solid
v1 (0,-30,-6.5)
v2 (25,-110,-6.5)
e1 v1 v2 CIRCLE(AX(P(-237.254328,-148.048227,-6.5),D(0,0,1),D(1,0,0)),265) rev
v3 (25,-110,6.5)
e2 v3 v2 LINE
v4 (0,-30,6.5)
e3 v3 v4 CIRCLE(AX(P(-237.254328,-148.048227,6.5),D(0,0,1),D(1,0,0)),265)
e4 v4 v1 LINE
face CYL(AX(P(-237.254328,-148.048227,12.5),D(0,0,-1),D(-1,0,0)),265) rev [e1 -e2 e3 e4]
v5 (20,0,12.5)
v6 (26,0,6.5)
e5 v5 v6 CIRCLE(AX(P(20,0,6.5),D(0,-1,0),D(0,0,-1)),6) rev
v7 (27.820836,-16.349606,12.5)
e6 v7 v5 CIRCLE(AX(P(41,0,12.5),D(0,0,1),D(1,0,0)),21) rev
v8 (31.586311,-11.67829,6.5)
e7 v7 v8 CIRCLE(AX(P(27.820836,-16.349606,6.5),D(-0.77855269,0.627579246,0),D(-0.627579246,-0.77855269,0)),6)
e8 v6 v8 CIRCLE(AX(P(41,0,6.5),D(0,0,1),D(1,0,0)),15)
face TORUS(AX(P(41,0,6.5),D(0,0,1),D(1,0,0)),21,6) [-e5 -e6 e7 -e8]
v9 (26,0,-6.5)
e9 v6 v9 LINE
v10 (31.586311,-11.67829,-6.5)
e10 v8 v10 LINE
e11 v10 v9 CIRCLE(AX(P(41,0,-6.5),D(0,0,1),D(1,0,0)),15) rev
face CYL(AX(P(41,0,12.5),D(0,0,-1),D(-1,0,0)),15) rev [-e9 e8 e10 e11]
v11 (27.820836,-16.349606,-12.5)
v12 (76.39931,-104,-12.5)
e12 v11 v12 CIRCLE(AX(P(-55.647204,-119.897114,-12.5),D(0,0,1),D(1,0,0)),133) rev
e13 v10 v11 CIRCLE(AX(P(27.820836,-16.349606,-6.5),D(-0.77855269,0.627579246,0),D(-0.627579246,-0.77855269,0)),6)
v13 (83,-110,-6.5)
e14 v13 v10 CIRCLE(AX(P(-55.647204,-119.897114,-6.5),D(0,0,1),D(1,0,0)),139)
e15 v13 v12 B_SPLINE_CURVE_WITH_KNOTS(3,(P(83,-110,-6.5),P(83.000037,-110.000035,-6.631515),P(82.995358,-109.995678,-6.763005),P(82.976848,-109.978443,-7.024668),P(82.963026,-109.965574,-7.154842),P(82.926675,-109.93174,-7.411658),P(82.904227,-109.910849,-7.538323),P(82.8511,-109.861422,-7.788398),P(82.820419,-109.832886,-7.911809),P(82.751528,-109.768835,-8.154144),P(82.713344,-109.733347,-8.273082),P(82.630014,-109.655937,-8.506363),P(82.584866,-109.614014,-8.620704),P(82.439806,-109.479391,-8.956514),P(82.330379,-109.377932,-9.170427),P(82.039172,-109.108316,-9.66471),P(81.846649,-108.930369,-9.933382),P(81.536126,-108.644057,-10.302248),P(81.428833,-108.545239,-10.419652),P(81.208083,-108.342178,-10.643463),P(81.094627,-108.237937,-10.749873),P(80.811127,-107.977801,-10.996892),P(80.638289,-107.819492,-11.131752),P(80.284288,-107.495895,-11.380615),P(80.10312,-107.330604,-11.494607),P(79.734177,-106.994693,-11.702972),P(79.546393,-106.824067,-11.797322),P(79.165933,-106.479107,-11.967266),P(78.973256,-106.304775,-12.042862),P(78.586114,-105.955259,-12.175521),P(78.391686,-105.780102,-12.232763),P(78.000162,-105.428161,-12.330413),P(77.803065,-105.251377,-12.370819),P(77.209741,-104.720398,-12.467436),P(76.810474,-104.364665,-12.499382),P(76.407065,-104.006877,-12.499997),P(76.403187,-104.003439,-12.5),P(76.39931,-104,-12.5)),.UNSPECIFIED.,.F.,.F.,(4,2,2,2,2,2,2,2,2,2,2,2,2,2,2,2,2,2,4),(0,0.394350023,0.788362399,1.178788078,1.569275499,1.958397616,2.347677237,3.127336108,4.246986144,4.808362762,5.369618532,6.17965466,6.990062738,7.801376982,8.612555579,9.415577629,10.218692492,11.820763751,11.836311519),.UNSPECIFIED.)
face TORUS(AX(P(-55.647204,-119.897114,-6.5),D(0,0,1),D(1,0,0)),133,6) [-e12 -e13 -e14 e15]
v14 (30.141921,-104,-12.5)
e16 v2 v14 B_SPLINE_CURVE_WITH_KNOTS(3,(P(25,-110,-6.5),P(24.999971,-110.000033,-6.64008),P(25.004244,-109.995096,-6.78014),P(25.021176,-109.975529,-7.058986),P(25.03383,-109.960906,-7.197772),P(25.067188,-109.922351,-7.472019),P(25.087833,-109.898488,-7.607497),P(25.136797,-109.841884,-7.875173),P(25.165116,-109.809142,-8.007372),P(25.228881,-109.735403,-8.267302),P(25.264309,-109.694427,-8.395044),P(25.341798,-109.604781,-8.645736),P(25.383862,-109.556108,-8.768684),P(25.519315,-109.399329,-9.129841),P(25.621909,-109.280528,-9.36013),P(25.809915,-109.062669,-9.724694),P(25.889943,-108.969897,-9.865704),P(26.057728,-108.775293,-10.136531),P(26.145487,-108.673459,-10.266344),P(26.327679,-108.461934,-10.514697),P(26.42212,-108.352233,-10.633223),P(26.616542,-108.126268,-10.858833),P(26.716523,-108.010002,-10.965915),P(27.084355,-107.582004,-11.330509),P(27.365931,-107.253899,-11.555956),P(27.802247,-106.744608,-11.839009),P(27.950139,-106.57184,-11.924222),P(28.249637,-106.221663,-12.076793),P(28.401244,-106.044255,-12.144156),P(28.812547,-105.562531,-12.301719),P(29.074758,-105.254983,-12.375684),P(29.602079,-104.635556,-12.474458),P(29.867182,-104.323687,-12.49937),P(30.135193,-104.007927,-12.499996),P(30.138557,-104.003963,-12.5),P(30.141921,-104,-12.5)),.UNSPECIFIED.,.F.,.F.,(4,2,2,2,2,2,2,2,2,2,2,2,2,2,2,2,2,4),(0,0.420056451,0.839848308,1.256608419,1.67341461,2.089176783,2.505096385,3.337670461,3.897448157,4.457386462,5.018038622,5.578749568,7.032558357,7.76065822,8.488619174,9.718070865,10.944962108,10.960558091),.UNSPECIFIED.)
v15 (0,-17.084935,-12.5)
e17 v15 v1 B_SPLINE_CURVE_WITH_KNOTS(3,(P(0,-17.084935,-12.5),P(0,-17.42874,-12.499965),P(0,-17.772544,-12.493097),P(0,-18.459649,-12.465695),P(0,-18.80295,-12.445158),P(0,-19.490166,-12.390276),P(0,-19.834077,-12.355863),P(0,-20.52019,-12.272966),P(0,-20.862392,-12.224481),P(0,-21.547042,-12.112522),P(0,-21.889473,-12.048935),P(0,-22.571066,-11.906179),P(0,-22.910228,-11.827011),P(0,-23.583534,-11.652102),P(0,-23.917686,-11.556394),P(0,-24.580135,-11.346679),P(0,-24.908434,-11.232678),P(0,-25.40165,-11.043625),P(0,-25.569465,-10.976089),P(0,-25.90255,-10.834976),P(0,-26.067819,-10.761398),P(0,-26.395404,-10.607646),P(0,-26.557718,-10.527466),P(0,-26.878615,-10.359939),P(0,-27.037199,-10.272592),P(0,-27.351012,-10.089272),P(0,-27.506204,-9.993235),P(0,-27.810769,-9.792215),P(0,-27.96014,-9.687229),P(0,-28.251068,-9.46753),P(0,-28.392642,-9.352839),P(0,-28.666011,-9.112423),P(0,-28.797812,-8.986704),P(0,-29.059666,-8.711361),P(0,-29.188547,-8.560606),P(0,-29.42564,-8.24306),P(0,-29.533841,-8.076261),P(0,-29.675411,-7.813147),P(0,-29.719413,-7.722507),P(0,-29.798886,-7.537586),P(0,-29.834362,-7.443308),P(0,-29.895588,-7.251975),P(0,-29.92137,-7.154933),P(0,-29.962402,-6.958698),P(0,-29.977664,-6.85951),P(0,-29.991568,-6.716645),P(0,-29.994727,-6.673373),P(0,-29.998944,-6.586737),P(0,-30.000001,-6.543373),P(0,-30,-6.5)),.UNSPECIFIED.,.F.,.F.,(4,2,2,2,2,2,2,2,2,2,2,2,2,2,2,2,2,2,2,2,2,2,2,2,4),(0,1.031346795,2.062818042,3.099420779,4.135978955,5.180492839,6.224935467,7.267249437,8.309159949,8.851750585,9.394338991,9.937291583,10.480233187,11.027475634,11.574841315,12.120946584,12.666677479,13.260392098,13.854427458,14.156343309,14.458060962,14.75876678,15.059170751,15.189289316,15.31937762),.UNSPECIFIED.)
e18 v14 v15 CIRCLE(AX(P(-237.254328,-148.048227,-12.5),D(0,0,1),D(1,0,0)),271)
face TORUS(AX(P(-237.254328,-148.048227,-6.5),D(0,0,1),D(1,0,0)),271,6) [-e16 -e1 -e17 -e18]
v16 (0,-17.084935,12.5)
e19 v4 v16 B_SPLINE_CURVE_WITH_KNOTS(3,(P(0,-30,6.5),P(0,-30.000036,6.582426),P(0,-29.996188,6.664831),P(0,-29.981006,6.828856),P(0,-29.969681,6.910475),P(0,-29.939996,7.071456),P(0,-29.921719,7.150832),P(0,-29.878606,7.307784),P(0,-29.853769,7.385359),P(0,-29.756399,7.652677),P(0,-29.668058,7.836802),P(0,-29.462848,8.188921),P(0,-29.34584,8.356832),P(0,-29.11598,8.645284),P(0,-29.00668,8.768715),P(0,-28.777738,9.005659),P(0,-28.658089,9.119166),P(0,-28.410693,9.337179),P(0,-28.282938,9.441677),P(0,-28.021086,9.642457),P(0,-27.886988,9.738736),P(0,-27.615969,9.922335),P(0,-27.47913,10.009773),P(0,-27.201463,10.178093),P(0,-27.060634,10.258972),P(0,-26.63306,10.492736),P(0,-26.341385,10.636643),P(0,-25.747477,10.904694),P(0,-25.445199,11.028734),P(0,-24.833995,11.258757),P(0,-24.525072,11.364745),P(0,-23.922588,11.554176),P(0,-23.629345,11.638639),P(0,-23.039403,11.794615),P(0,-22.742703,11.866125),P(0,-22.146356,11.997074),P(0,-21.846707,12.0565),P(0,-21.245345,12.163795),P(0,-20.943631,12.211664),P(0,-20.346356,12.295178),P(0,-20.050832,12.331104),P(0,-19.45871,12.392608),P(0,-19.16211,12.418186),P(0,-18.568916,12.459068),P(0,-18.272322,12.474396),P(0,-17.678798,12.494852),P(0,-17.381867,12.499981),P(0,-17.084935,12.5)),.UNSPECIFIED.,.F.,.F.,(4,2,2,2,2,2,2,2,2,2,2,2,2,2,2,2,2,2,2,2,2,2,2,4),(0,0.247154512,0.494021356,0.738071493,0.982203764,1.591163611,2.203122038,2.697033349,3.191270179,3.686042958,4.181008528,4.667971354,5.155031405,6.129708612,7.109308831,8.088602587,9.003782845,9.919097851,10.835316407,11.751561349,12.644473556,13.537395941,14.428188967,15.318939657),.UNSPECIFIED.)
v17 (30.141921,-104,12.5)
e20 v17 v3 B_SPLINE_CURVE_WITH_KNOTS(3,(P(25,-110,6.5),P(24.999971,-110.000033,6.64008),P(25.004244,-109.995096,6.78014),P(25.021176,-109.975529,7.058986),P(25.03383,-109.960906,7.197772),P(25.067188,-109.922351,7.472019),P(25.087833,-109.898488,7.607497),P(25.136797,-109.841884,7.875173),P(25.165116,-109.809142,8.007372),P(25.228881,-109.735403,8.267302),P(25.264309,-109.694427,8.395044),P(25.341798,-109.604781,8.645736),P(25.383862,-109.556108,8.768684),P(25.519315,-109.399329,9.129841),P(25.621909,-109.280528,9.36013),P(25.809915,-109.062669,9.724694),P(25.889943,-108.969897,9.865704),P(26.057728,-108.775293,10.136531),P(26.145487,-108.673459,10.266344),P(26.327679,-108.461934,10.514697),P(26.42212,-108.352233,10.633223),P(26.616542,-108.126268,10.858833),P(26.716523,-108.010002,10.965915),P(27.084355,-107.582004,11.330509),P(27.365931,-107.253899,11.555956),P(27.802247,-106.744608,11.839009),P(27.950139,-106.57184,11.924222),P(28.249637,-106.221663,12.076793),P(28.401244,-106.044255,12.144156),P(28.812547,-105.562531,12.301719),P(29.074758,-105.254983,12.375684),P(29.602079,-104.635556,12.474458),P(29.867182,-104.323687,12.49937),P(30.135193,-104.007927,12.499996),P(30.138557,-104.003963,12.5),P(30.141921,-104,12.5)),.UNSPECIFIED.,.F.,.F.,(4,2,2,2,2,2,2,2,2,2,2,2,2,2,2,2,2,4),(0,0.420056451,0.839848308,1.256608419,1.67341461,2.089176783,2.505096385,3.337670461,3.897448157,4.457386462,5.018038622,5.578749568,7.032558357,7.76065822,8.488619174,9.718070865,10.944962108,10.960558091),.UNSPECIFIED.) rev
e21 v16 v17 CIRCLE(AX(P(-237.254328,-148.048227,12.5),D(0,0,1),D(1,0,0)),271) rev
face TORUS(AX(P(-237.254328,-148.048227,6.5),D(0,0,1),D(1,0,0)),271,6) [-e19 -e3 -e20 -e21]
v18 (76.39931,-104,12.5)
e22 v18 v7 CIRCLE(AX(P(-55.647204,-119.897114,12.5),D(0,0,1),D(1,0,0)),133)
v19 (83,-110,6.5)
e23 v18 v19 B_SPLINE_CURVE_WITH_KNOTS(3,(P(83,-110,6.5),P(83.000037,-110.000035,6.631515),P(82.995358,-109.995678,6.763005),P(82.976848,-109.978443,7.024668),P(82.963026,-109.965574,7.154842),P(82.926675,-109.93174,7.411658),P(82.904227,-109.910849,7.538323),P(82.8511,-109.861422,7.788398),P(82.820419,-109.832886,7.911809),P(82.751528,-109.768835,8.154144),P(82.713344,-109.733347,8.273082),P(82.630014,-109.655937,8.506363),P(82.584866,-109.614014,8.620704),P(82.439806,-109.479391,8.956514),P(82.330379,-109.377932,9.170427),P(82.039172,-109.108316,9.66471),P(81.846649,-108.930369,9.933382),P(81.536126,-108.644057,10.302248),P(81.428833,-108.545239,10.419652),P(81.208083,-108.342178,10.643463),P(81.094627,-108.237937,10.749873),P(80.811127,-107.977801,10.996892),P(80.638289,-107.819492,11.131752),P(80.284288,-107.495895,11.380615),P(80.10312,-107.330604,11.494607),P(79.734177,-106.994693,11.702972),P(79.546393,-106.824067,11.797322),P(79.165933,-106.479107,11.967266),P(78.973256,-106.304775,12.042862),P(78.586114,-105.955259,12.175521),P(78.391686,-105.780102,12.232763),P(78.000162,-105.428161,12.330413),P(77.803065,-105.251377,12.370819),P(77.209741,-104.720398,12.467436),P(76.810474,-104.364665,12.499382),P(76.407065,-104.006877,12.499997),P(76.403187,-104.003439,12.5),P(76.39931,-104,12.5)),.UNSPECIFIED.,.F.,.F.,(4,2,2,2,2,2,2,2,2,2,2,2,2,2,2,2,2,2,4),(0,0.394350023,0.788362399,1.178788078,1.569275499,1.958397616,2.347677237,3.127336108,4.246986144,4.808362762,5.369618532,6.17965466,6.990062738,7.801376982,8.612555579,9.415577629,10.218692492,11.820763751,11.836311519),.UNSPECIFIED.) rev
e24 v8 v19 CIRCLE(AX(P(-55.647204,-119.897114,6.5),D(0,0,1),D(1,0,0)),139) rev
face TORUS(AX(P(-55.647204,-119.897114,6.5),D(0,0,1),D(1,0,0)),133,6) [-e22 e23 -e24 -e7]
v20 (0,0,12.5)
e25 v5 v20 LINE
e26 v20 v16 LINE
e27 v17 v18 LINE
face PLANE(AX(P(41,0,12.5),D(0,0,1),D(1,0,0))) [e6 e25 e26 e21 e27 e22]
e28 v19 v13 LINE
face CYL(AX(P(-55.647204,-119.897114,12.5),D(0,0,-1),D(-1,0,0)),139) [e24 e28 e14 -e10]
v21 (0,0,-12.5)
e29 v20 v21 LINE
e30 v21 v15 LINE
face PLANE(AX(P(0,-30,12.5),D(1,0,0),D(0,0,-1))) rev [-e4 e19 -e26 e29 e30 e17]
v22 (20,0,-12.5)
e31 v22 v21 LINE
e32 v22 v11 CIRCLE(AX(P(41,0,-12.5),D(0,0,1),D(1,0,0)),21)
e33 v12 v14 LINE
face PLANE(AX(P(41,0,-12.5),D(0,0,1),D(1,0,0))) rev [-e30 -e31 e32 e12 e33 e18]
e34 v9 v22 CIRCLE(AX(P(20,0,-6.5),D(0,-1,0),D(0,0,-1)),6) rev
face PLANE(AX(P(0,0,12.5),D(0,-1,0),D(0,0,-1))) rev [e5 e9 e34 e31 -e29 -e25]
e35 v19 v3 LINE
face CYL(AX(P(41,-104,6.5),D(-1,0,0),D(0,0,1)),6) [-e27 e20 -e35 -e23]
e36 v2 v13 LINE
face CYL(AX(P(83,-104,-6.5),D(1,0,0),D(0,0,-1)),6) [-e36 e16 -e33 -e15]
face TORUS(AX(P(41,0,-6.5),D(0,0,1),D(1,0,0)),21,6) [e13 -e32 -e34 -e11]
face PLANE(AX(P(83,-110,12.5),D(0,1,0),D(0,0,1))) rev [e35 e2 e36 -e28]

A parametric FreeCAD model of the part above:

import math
import FreeCAD as App
import Part
import Sketcher
from FreeCAD import Vector


def edges_at(feature, points):
    """Names of the edges that pass closest to the given points."""
    edges = feature.Shape.Edges
    near = lambda p: min(range(len(edges)), key=lambda i: edges[i].distToShape(Part.Vertex(*p))[0])
    return sorted({f"Edge{near(p) + 1}" for p in points})

doc = App.newDocument("Part")
params = doc.addObject("Spreadsheet::Sheet", "Params")
for row, (alias, value) in enumerate([
    ("sketch1_radius", "265 mm"),
    ("sketch1_radius2", "139 mm"),
    ("sketch1_radius3", "15 mm"),
    ("sketch1_width", "26 mm"),
    ("sketch1_width2", "58 mm"),
    ("pad1_length", "25 mm"),
    ("fillet_radius", "6 mm"),
], start=1):
    params.set(f"A{row}", alias)
    params.set(f"B{row}", "=" + value)
    params.setAlias(f"B{row}", alias)

body = doc.addObject("PartDesign::Body", "Body")

# Sketch on XY plane
sketch1 = body.newObject("Sketcher::SketchObject", "Sketch")
sketch1.AttachmentSupport = (doc.getObject("XY_Plane"), [""])
sketch1.MapMode = "FlatFace"
sketch1.addGeometry([
    Part.LineSegment(Vector(26, 0, 0), Vector(0, 0, 0)),  # 0
    Part.LineSegment(Vector(0, 0, 0), Vector(0, -30, 0)),  # 1
    Part.ArcOfCircle(Part.Circle(Vector(-237.254328, -148.048227, 0), Vector(0, 0, 1), 265), math.radians(8.254956), math.radians(26.453094)),  # 2
    Part.LineSegment(Vector(25, -110, 0), Vector(83, -110, 0)),  # 3
    Part.ArcOfCircle(Part.Circle(Vector(-55.647204, -119.897114, 0), Vector(0, 0, 1), 139), math.radians(4.083044), math.radians(51.128251)),  # 4
    Part.ArcOfCircle(Part.Circle(Vector(41, 0, 0), Vector(0, 0, 1), 15), math.radians(180), math.radians(231.128251)),  # 5
], False)
sketch1.addConstraint([
    Sketcher.Constraint("Coincident", 0, 2, 1, 1),
    Sketcher.Constraint("Coincident", 1, 2, 2, 2),
    Sketcher.Constraint("Coincident", 2, 1, 3, 1),
    Sketcher.Constraint("Coincident", 3, 2, 4, 1),
    Sketcher.Constraint("Tangent", 4, 2, 5, 2),
    Sketcher.Constraint("Coincident", 5, 1, 0, 1),
    Sketcher.Constraint("Horizontal", 0),
    Sketcher.Constraint("Vertical", 1),
    Sketcher.Constraint("Horizontal", 3),
    Sketcher.Constraint("Coincident", 0, 2, -1, 1),
    Sketcher.Constraint("PointOnObject", 5, 3, -1),
    Sketcher.Constraint("Radius", 2, 265.0),
    Sketcher.Constraint("Radius", 4, 139.0),
    Sketcher.Constraint("Radius", 5, 15.0),
    Sketcher.Constraint("DistanceX", 0, 2, 0, 1, 26.0),
    Sketcher.Constraint("DistanceX", 3, 1, 3, 2, 58.0),
    Sketcher.Constraint("DistanceY", 1, 2, 1, 1, 30.0),
    Sketcher.Constraint("DistanceX", -1, 1, 2, 1, 25.0),
    Sketcher.Constraint("DistanceY", 2, 1, -1, 1, 110.0),
])
sketch1.setExpression("Constraints[11]", "Params.sketch1_radius")
sketch1.setExpression("Constraints[12]", "Params.sketch1_radius2")
sketch1.setExpression("Constraints[13]", "Params.sketch1_radius3")
sketch1.setExpression("Constraints[14]", "Params.sketch1_width")
sketch1.setExpression("Constraints[15]", "Params.sketch1_width2")
pad1 = body.newObject("PartDesign::Pad", "Pad")
pad1.Profile = sketch1
pad1.setExpression("Length", "Params.pad1_length")
pad1.Midplane = True
doc.recompute()

fillet = body.newObject("PartDesign::Fillet", "Fillet")
fillet.Base = (pad1, edges_at(pad1, [
    (54, -110, 12.5),
    (67.529, -55.487, 12.5),
    (27.468, -6.473, 12.5),
    (27.468, -6.473, -12.5),
    (67.529, -55.487, -12.5),
    (54, -110, -12.5),
    (15.683, -69.005, -12.5),
    (15.683, -69.005, 12.5),
]))
fillet.setExpression("Radius", "Params.fillet_radius")

doc.recompute()
